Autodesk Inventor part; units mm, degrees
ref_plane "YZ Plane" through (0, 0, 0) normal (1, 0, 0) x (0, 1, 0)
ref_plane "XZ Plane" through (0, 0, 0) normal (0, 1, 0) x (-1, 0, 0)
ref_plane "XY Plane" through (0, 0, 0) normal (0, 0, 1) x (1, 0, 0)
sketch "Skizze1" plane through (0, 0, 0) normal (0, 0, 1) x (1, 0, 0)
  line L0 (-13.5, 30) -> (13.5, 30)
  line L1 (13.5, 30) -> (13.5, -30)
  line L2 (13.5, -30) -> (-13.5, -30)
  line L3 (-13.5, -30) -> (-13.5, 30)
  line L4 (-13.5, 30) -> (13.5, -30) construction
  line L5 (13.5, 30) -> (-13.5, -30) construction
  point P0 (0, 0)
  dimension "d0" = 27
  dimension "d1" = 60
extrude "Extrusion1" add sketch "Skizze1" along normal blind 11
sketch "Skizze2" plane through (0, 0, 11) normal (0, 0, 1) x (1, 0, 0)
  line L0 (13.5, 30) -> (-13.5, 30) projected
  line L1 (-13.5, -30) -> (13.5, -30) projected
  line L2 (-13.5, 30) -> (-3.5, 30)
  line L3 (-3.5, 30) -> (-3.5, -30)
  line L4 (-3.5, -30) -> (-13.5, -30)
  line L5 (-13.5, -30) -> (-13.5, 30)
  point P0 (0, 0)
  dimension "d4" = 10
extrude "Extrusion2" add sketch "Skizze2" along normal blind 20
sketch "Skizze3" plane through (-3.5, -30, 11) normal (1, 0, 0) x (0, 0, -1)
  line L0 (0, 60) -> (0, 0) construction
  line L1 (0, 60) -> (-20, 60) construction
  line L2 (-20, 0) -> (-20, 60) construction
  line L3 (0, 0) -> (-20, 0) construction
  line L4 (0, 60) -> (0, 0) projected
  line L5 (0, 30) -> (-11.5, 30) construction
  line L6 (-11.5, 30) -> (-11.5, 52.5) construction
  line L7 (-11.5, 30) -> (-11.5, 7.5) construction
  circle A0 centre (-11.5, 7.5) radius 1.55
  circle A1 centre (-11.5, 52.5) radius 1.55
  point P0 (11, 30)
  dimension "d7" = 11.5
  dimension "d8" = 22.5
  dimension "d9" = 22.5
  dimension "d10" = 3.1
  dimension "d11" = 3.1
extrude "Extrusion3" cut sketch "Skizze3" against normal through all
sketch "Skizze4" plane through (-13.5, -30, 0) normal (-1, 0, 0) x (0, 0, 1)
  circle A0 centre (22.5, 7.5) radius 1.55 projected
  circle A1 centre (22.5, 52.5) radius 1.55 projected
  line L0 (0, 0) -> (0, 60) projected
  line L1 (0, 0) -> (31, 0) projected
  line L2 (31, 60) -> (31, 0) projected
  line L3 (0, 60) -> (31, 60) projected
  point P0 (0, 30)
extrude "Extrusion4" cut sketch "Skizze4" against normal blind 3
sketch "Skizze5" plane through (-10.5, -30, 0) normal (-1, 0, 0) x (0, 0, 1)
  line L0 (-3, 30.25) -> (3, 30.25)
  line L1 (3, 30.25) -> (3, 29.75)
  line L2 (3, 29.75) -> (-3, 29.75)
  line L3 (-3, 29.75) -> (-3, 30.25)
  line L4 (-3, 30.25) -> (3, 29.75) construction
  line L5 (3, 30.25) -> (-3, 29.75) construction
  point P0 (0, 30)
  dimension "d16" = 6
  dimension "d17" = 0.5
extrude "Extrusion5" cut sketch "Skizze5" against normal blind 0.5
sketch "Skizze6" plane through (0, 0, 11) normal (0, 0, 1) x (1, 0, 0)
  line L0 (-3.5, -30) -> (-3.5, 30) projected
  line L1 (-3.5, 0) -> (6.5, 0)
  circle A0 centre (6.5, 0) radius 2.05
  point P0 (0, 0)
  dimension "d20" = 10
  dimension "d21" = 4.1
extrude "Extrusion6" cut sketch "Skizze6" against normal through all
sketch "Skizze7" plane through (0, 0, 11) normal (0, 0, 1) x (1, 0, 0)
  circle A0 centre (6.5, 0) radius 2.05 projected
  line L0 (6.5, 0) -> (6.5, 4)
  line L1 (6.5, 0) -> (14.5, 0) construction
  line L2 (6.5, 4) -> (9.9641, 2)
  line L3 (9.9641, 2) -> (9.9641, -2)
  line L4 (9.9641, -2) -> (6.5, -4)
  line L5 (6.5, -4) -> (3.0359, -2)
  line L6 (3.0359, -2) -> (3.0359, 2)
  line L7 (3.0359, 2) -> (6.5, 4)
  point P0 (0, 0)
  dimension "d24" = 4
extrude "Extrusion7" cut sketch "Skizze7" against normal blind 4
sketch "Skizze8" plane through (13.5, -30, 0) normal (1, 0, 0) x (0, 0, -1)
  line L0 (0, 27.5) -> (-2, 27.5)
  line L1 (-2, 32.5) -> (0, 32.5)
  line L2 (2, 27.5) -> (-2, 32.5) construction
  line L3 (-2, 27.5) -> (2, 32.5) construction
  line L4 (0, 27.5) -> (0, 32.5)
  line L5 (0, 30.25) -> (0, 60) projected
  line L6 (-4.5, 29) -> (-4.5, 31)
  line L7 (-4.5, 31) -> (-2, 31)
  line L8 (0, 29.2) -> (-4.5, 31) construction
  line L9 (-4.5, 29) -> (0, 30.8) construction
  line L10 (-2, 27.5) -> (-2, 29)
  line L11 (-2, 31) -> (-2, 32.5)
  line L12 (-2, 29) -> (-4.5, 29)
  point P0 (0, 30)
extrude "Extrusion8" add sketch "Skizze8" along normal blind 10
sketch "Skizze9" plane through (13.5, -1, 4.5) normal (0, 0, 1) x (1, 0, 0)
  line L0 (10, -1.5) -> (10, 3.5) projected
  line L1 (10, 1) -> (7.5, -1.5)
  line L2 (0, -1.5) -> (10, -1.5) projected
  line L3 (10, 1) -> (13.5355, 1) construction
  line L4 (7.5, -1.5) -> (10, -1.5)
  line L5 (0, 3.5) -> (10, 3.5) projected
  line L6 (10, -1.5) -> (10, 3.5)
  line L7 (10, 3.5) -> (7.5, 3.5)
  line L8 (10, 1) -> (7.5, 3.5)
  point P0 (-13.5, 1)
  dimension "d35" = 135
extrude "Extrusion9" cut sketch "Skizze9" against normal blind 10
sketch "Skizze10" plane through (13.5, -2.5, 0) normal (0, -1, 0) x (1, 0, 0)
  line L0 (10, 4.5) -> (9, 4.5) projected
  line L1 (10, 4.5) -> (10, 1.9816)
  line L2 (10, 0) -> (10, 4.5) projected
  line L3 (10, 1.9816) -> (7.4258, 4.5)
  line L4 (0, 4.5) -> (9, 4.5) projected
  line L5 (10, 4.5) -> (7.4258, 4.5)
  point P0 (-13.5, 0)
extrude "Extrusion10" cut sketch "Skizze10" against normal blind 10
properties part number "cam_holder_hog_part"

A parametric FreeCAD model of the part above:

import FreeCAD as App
import Part
import Sketcher

V = App.Vector
Q = App.Units.Quantity


def add_polygon(sketch, points):
    """Adds a closed chain of lines whose ends are joined by coincident constraints."""
    first, n = sketch.GeometryCount, len(points)
    for a, b in zip(points, points[1:] + points[:1]):
        sketch.addGeometry(Part.LineSegment(App.Vector(*a, 0), App.Vector(*b, 0)), False)
    for i in range(n):
        sketch.addConstraint(Sketcher.Constraint("Coincident", first + i, 2, first + (i + 1) % n, 1))

doc = App.newDocument("Part")
body = doc.addObject("PartDesign::Body", "Body")

sketch1 = body.newObject("Sketcher::SketchObject", "Sketch")
sketch1.AttachmentSupport = (doc.getObject("XY_Plane"), [""])
sketch1.MapMode = "FlatFace"
add_polygon(sketch1, [(14, 30), (-14, 30), (-14, -30), (14, -30)])
sketch1.addConstraint(Sketcher.Constraint("Horizontal", 0))
sketch1.addConstraint(Sketcher.Constraint("Vertical", 1))
sketch1.addConstraint(Sketcher.Constraint("Horizontal", 2))
sketch1.addConstraint(Sketcher.Constraint("Vertical", 3))
sketch1.addConstraint(Sketcher.Constraint("Symmetric", 0, 2, 2, 2, -1, 1))
sketch1.addConstraint(Sketcher.Constraint("DistanceX", 0, 2, 0, 1, Q("27 mm")))
sketch1.addConstraint(Sketcher.Constraint("DistanceY", 1, 2, 1, 1, Q("60 mm")))
pad1 = body.newObject("PartDesign::Pad", "Pad")
pad1.Profile = sketch1
pad1.Length = 11

sketch2 = body.newObject("Sketcher::SketchObject", "Sketch001")
sketch2.AttachmentSupport = (doc.getObject("XY_Plane"), [""])
sketch2.MapMode = "FlatFace"
sketch2.AttachmentOffset = App.Placement(V(0, 0, 11), App.Rotation())
add_polygon(sketch2, [(-4, -30), (-4, 30), (-14, 30), (-14, -30)])
sketch2.addConstraint(Sketcher.Constraint("Vertical", 0))
sketch2.addConstraint(Sketcher.Constraint("Horizontal", 1))
sketch2.addConstraint(Sketcher.Constraint("Vertical", 2))
sketch2.addConstraint(Sketcher.Constraint("Horizontal", 3))
sketch2.addConstraint(Sketcher.Constraint("DistanceX", 1, 2, 1, 1, Q("10 mm")))
sketch2.addConstraint(Sketcher.Constraint("DistanceY", 0, 1, 0, 2, Q("60 mm")))
sketch2.addConstraint(Sketcher.Constraint("DistanceY", -1, 1, 0, 2, Q("30 mm")))
sketch2.addConstraint(Sketcher.Constraint("DistanceX", 0, 2, -1, 1, Q("3.5 mm")))
pad2 = body.newObject("PartDesign::Pad", "Pad001")
pad2.Profile = sketch2
pad2.Length = 20

sketch3 = body.newObject("Sketcher::SketchObject", "Sketch002")
sketch3.AttachmentSupport = (doc.getObject("YZ_Plane"), [""])
sketch3.MapMode = "FlatFace"
sketch3.AttachmentOffset = App.Placement(V(0, 0, -3.5), App.Rotation())
sketch3.addGeometry(Part.Circle(V(-22.5, 22.5, 0), V(0, 0, 1), 1.6), False)
sketch3.addGeometry(Part.Circle(V(22.5, 22.5, 0), V(0, 0, 1), 1.6), False)
sketch3.addConstraint(Sketcher.Constraint("Equal", 0, 1))
sketch3.addConstraint(Sketcher.Constraint("Symmetric", 0, 3, 1, 3, -2))
sketch3.addConstraint(Sketcher.Constraint("Diameter", 0, Q("3.1 mm")))
sketch3.addConstraint(Sketcher.Constraint("DistanceX", 0, 3, -1, 1, Q("22.5 mm")))
sketch3.addConstraint(Sketcher.Constraint("DistanceY", -1, 1, 0, 3, Q("22.5 mm")))
pocket1 = body.newObject("PartDesign::Pocket", "Pocket")
pocket1.Profile = sketch3
pocket1.Type = "ThroughAll"

sketch4 = body.newObject("Sketcher::SketchObject", "Sketch003")
sketch4.AttachmentSupport = (doc.getObject("YZ_Plane"), [""])
sketch4.MapMode = "FlatFace"
sketch4.AttachmentOffset = App.Placement(V(0, 0, -13.5), App.Rotation())
add_polygon(sketch4, [(30, 0), (-30, 0), (-30, 31), (30, 31)])
sketch4.addGeometry(Part.Circle(V(-22.5, 22.5, 0), V(0, 0, 1), 1.6), False)
sketch4.addGeometry(Part.Circle(V(22.5, 22.5, 0), V(0, 0, 1), 1.6), False)
sketch4.addConstraint(Sketcher.Constraint("Horizontal", 0))
sketch4.addConstraint(Sketcher.Constraint("Vertical", 1))
sketch4.addConstraint(Sketcher.Constraint("Horizontal", 2))
sketch4.addConstraint(Sketcher.Constraint("Vertical", 3))
sketch4.addConstraint(Sketcher.Constraint("Equal", 4, 5))
sketch4.addConstraint(Sketcher.Constraint("Symmetric", 0, 2, 3, 2, -1, 1))
sketch4.addConstraint(Sketcher.Constraint("Symmetric", 4, 3, 5, 3, -2))
sketch4.addConstraint(Sketcher.Constraint("Diameter", 4, Q("3.1 mm")))
sketch4.addConstraint(Sketcher.Constraint("DistanceX", 0, 2, 0, 1, Q("60 mm")))
sketch4.addConstraint(Sketcher.Constraint("DistanceY", 1, 1, 1, 2, Q("31 mm")))
sketch4.addConstraint(Sketcher.Constraint("DistanceX", 4, 3, 5, 3, Q("45 mm")))
sketch4.addConstraint(Sketcher.Constraint("DistanceY", -1, 1, 4, 3, Q("22.5 mm")))
pocket2 = body.newObject("PartDesign::Pocket", "Pocket001")
pocket2.Profile = sketch4
pocket2.Length = 3
pocket2.Reversed = True

sketch5 = body.newObject("Sketcher::SketchObject", "Sketch004")
sketch5.AttachmentSupport = (doc.getObject("YZ_Plane"), [""])
sketch5.MapMode = "FlatFace"
sketch5.AttachmentOffset = App.Placement(V(0, 0, -10.5), App.Rotation())
add_polygon(sketch5, [(0.2, 3), (0.2, -3), (-0.2, -3), (-0.2, 3)])
sketch5.addConstraint(Sketcher.Constraint("Vertical", 0))
sketch5.addConstraint(Sketcher.Constraint("Horizontal", 1))
sketch5.addConstraint(Sketcher.Constraint("Vertical", 2))
sketch5.addConstraint(Sketcher.Constraint("Horizontal", 3))
sketch5.addConstraint(Sketcher.Constraint("Symmetric", 0, 2, 2, 2, -1, 1))
sketch5.addConstraint(Sketcher.Constraint("DistanceY", 0, 2, 0, 1, Q("6 mm")))
sketch5.addConstraint(Sketcher.Constraint("DistanceX", 1, 2, 1, 1, Q("0.5 mm")))
pocket3 = body.newObject("PartDesign::Pocket", "Pocket002")
pocket3.Profile = sketch5
pocket3.Length = 0.5
pocket3.Reversed = True

sketch6 = body.newObject("Sketcher::SketchObject", "Sketch005")
sketch6.AttachmentSupport = (doc.getObject("XY_Plane"), [""])
sketch6.MapMode = "FlatFace"
sketch6.AttachmentOffset = App.Placement(V(0, 0, 11), App.Rotation())
sketch6.addGeometry(Part.Circle(V(6.5, 0, 0), V(0, 0, 1), 2), False)
sketch6.addConstraint(Sketcher.Constraint("PointOnObject", 0, 3, -1))
sketch6.addConstraint(Sketcher.Constraint("Diameter", 0, Q("4.1 mm")))
sketch6.addConstraint(Sketcher.Constraint("DistanceX", -1, 1, 0, 3, Q("6.5 mm")))
pocket4 = body.newObject("PartDesign::Pocket", "Pocket003")
pocket4.Profile = sketch6
pocket4.Type = "ThroughAll"

sketch7 = body.newObject("Sketcher::SketchObject", "Sketch006")
sketch7.AttachmentSupport = (doc.getObject("XY_Plane"), [""])
sketch7.MapMode = "FlatFace"
sketch7.AttachmentOffset = App.Placement(V(0, 0, 11), App.Rotation())
add_polygon(sketch7, [(10, 2), (6.5, 4), (3, 2), (3, -2), (6.5, -4), (10, -2)])
sketch7.addGeometry(Part.Circle(V(6.5, 0, 0), V(0, 0, 1), 2), False)
sketch7.addConstraint(Sketcher.Constraint("Vertical", 2))
sketch7.addConstraint(Sketcher.Constraint("Vertical", 5))
sketch7.addConstraint(Sketcher.Constraint("Symmetric", 0, 2, 3, 2, -1))
sketch7.addConstraint(Sketcher.Constraint("PointOnObject", 6, 3, -1))
sketch7.addConstraint(Sketcher.Constraint("Parallel", 0, 3))
sketch7.addConstraint(Sketcher.Constraint("Parallel", 1, 4))
sketch7.addConstraint(Sketcher.Constraint("Horizontal", 2, 2, 4, 2))
sketch7.addConstraint(Sketcher.Constraint("Horizontal", 1, 2, 5, 2))
sketch7.addConstraint(Sketcher.Constraint("Vertical", 6, 3, 0, 2))
sketch7.addConstraint(Sketcher.Constraint("DistanceY", 2, 2, 2, 1, Q("4 mm")))
sketch7.addConstraint(Sketcher.Constraint("Distance", 0, Q("4 mm")))
sketch7.addConstraint(Sketcher.Constraint("DistanceY", -1, 1, 0, 2, Q("4 mm")))
sketch7.addConstraint(Sketcher.Constraint("Diameter", 6, Q("4.1 mm")))
sketch7.addConstraint(Sketcher.Constraint("DistanceX", -1, 1, 6, 3, Q("6.5 mm")))
pocket5 = body.newObject("PartDesign::Pocket", "Pocket004")
pocket5.Profile = sketch7
pocket5.Length = 4

sketch8 = body.newObject("Sketcher::SketchObject", "Sketch007")
sketch8.AttachmentSupport = (doc.getObject("YZ_Plane"), [""])
sketch8.MapMode = "FlatFace"
sketch8.AttachmentOffset = App.Placement(V(0, 0, 13.5), App.Rotation())
add_polygon(sketch8, [(-2.5, 2), (-2.5, 0), (2.5, 0), (2.5, 2), (1, 2), (1, 4.5), (-1, 4.5), (-1, 2)])
sketch8.addConstraint(Sketcher.Constraint("Vertical", 0))
sketch8.addConstraint(Sketcher.Constraint("Horizontal", 1))
sketch8.addConstraint(Sketcher.Constraint("Vertical", 2))
sketch8.addConstraint(Sketcher.Constraint("Horizontal", 3))
sketch8.addConstraint(Sketcher.Constraint("Vertical", 4))
sketch8.addConstraint(Sketcher.Constraint("Horizontal", 5))
sketch8.addConstraint(Sketcher.Constraint("Vertical", 6))
sketch8.addConstraint(Sketcher.Constraint("Horizontal", 7))
sketch8.addConstraint(Sketcher.Constraint("Symmetric", 0, 2, 1, 2, -1, 1))
sketch8.addConstraint(Sketcher.Constraint("Symmetric", 3, 2, 6, 2, -2))
sketch8.addConstraint(Sketcher.Constraint("Equal", 5, 0))
sketch8.addConstraint(Sketcher.Constraint("DistanceX", 1, 1, 1, 2, Q("5 mm")))
sketch8.addConstraint(Sketcher.Constraint("DistanceX", 5, 2, 5, 1, Q("2 mm")))
sketch8.addConstraint(Sketcher.Constraint("DistanceY", 4, 1, 4, 2, Q("2.5 mm")))
pad3 = body.newObject("PartDesign::Pad", "Pad002")
pad3.Profile = sketch8
pad3.Length = 10

sketch9 = body.newObject("Sketcher::SketchObject", "Sketch008")
sketch9.AttachmentSupport = (doc.getObject("XY_Plane"), [""])
sketch9.MapMode = "FlatFace"
sketch9.AttachmentOffset = App.Placement(V(0, 0, 4.5), App.Rotation())
add_polygon(sketch9, [(21, -2.5), (23.5, -2.5), (23.5, 0)])
add_polygon(sketch9, [(21, 2.5), (23.5, 0), (23.5, 2.5)])
sketch9.addConstraint(Sketcher.Constraint("Horizontal", 0))
sketch9.addConstraint(Sketcher.Constraint("Vertical", 1))
sketch9.addConstraint(Sketcher.Constraint("Vertical", 4))
sketch9.addConstraint(Sketcher.Constraint("Horizontal", 5))
sketch9.addConstraint(Sketcher.Constraint("Coincident", 3, 2, 1, 2))
sketch9.addConstraint(Sketcher.Constraint("Symmetric", 2, 2, 5, 2, -1))
sketch9.addConstraint(Sketcher.Constraint("PointOnObject", 1, 2, -1))
sketch9.addConstraint(Sketcher.Constraint("Perpendicular", 2, 3))
sketch9.addConstraint(Sketcher.Constraint("DistanceX", 0, 1, 0, 2, Q("2.5 mm")))
sketch9.addConstraint(Sketcher.Constraint("DistanceX", -1, 1, 2, 2, Q("21 mm")))
pocket6 = body.newObject("PartDesign::Pocket", "Pocket005")
pocket6.Profile = sketch9
pocket6.Length = 10

sketch10 = body.newObject("Sketcher::SketchObject", "Sketch009")
sketch10.AttachmentSupport = (doc.getObject("XZ_Plane"), [""])
sketch10.MapMode = "FlatFace"
sketch10.AttachmentOffset = App.Placement(V(0, 0, 2.5), App.Rotation())
add_polygon(sketch10, [(23.5, 2), (23.5, 4.5), (20.9, 4.5)])
sketch10.addConstraint(Sketcher.Constraint("Vertical", 0))
sketch10.addConstraint(Sketcher.Constraint("Horizontal", 1))
sketch10.addConstraint(Sketcher.Constraint("DistanceX", -1, 1, 0, 2, Q("23.5 mm")))
sketch10.addConstraint(Sketcher.Constraint("DistanceY", -1, 1, 0, 2, Q("4.5 mm")))
sketch10.addConstraint(Sketcher.Constraint("DistanceX", 1, 2, 1, 1, Q("2.5742 mm")))
sketch10.addConstraint(Sketcher.Constraint("DistanceY", 0, 1, 0, 2, Q("2.5184 mm")))
pocket7 = body.newObject("PartDesign::Pocket", "Pocket006")
pocket7.Profile = sketch10
pocket7.Length = 10

doc.recompute()
